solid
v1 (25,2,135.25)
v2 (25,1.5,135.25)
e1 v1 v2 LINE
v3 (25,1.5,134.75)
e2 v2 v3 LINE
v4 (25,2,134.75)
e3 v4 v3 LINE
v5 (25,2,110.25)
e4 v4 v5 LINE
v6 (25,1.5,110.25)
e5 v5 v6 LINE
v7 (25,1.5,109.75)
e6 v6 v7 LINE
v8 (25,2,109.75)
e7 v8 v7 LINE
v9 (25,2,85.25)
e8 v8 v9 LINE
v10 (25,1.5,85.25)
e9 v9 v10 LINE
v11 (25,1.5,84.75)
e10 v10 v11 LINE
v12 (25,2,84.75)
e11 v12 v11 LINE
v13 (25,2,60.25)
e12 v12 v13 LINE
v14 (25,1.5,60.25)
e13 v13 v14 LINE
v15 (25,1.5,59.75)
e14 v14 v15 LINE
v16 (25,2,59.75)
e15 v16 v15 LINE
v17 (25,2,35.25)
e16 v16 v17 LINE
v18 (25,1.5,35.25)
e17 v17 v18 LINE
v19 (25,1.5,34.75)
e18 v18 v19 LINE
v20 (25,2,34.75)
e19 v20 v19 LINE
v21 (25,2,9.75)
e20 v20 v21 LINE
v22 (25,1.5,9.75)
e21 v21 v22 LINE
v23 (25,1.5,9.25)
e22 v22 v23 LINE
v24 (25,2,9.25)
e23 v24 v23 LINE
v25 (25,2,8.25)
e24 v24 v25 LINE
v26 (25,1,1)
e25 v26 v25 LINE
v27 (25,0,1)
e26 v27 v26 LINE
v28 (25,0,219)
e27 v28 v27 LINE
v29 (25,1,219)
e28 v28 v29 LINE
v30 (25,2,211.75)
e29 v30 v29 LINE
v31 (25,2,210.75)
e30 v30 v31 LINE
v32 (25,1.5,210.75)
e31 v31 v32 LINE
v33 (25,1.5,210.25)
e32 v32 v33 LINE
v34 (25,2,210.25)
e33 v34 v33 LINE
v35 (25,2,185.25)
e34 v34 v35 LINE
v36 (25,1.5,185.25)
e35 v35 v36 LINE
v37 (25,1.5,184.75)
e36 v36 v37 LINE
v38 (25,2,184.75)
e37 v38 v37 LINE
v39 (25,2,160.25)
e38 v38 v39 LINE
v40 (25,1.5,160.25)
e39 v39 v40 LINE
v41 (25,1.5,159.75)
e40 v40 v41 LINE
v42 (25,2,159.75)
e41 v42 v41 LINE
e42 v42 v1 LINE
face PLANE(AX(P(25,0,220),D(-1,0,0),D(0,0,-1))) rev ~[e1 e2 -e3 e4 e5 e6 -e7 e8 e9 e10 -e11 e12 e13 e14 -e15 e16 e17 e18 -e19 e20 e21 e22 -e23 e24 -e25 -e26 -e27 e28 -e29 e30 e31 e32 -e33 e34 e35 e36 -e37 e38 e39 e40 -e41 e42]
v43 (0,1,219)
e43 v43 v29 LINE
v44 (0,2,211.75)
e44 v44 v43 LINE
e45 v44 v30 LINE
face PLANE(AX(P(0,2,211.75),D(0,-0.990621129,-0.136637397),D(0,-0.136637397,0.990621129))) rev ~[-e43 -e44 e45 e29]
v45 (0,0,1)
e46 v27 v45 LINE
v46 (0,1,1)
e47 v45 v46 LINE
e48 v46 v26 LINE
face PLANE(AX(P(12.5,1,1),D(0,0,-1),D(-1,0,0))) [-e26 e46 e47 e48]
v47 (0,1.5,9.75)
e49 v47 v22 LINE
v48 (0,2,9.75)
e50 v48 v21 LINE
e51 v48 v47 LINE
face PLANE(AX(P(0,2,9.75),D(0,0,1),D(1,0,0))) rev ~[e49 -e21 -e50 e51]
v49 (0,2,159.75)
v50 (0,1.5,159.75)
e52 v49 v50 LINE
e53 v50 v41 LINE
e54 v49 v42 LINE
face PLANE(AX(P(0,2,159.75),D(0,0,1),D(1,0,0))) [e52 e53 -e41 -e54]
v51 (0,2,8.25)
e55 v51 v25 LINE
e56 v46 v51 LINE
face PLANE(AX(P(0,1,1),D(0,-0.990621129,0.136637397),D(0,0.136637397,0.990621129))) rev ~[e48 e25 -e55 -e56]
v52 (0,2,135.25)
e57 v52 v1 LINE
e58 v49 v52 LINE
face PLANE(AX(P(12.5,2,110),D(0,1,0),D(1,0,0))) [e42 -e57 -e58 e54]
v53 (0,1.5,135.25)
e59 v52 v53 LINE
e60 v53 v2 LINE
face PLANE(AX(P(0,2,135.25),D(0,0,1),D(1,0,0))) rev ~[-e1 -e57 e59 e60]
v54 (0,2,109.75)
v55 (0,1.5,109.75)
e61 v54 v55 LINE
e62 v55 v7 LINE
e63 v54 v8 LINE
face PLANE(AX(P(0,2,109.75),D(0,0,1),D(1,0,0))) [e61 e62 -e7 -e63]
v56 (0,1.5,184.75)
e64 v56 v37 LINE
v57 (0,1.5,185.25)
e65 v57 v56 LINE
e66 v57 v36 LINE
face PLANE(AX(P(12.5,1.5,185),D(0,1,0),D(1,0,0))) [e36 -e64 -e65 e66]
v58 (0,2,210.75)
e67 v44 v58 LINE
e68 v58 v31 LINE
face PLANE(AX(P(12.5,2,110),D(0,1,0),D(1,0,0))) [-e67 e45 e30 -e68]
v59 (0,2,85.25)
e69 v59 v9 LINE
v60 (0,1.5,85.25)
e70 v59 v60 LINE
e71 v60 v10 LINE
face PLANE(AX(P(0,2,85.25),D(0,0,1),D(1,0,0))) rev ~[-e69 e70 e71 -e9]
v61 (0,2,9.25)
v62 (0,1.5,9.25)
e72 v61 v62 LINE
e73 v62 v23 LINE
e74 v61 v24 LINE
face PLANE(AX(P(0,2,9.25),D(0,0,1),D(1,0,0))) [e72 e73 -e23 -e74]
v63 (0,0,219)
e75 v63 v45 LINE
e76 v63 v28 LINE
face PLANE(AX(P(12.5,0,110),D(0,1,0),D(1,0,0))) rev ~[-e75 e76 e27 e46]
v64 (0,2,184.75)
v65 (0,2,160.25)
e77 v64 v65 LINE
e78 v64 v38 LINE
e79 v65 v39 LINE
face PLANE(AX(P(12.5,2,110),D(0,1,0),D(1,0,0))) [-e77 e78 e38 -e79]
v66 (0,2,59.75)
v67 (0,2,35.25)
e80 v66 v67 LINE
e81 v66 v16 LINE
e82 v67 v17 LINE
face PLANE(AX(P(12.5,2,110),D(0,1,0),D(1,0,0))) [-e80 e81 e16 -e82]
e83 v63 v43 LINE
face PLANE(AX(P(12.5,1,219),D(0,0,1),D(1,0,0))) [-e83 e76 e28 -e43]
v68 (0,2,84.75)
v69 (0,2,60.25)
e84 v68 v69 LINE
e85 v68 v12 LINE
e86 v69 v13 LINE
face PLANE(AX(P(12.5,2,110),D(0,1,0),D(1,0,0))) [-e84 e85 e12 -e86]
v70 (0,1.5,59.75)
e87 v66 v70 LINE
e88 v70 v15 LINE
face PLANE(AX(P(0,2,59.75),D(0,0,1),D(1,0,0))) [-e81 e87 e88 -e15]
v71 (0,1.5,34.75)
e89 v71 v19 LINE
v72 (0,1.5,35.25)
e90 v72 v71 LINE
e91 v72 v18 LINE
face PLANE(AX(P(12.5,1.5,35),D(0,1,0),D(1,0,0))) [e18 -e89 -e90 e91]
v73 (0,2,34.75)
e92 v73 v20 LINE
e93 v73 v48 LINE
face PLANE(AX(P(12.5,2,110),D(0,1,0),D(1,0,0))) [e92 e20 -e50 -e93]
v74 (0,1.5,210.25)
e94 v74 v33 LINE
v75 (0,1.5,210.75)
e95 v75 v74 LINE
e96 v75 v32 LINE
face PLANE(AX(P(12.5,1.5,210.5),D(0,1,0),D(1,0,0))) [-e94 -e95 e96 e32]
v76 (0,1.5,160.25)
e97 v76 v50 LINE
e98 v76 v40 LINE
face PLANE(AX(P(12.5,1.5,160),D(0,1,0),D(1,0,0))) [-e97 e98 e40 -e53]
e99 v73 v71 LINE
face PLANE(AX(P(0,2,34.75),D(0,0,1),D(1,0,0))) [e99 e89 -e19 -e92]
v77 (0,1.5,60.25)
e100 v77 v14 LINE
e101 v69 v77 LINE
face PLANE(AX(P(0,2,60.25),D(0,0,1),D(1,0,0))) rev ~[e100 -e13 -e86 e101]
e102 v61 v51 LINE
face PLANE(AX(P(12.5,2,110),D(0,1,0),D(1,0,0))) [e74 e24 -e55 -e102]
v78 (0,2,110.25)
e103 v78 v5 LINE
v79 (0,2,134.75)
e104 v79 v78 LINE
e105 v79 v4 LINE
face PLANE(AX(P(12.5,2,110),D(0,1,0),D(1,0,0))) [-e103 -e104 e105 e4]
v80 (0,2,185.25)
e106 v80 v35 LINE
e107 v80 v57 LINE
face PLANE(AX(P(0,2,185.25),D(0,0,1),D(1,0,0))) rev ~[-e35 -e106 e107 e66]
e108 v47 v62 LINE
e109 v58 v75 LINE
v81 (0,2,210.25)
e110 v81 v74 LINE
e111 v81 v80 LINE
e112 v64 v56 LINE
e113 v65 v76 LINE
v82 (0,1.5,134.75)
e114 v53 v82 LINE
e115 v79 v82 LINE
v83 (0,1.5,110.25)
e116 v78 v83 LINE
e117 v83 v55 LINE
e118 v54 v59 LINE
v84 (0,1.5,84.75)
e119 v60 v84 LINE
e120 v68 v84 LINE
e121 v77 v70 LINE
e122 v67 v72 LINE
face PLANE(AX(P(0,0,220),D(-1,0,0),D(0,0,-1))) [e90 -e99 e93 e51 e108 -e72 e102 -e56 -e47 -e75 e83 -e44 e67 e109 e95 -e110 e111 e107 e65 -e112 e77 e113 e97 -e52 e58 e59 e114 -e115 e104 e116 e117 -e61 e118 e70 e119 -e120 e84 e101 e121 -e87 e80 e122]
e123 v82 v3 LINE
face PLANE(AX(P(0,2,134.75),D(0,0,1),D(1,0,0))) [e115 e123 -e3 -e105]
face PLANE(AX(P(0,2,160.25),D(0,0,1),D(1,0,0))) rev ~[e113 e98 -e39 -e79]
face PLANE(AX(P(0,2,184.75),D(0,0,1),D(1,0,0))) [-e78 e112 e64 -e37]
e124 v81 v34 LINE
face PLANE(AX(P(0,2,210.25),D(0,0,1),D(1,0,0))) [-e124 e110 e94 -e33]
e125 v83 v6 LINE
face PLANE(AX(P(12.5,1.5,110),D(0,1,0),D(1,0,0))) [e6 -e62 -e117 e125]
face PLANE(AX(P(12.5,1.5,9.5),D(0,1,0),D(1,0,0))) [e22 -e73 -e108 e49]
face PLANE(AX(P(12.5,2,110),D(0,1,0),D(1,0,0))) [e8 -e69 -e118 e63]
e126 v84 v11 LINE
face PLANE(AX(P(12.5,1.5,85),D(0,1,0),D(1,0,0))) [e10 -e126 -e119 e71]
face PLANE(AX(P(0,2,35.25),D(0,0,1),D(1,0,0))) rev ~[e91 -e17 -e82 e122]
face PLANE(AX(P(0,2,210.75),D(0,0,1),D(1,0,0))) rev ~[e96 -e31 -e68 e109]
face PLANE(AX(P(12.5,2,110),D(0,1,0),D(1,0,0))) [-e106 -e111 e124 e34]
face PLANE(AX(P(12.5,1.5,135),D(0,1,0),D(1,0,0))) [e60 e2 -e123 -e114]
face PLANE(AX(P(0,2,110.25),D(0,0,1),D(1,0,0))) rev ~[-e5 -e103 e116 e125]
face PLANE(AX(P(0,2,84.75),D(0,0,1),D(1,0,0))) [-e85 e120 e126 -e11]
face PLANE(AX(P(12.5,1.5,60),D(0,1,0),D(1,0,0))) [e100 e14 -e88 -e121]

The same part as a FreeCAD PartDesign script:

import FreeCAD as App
import Part
import Sketcher


def add_polygon(sketch, points):
    """Adds a closed chain of lines whose ends are joined by coincident constraints."""
    first, n = sketch.GeometryCount, len(points)
    for a, b in zip(points, points[1:] + points[:1]):
        sketch.addGeometry(Part.LineSegment(App.Vector(*a, 0), App.Vector(*b, 0)), False)
    for i in range(n):
        sketch.addConstraint(Sketcher.Constraint("Coincident", first + i, 2, first + (i + 1) % n, 1))

doc = App.newDocument("Part")
body = doc.addObject("PartDesign::Body", "Body")

# Sketch on XZ plane
sketch1 = body.newObject("Sketcher::SketchObject", "Sketch")
sketch1.AttachmentSupport = (doc.getObject("XZ_Plane"), [""])
sketch1.MapMode = "FlatFace"
add_polygon(sketch1, [(0, 0), (0, 220), (25, 220), (25, 0)])  # lines 0-3
sketch1.addConstraint([
    Sketcher.Constraint("Vertical", 0),
    Sketcher.Constraint("Horizontal", 1),
    Sketcher.Constraint("Vertical", 2),
    Sketcher.Constraint("Horizontal", 3),
    Sketcher.Constraint("Coincident", 3, 2, -1, 1),
    Sketcher.Constraint("DistanceX", 1, 1, 1, 2, 25.0),
    Sketcher.Constraint("DistanceY", 0, 1, 0, 2, 220.0),
])
pad1 = body.newObject("PartDesign::Pad", "Pad")
pad1.Profile = sketch1
pad1.Length = 2
pad1.Reversed = True

# Sketch on XZ plane
sketch2 = body.newObject("Sketcher::SketchObject", "Sketch001")
sketch2.AttachmentSupport = (doc.getObject("XZ_Plane"), [""])
sketch2.MapMode = "FlatFace"
sketch2.AttachmentOffset = App.Placement(App.Vector(0, 0, -2), App.Rotation())
add_polygon(sketch2, [(0, 9.25), (0, 9.75), (25, 9.75), (25, 9.25)])  # lines 0-3
add_polygon(sketch2, [(0, 210.25), (0, 210.75), (25, 210.75), (25, 210.25)])  # lines 4-7
add_polygon(sketch2, [(0, 59.75), (0, 60.25), (25, 60.25), (25, 59.75)])  # lines 8-11
add_polygon(sketch2, [(0, 34.75), (0, 35.25), (25, 35.25), (25, 34.75)])  # lines 12-15
add_polygon(sketch2, [(0, 84.75), (0, 85.25), (25, 85.25), (25, 84.75)])  # lines 16-19
add_polygon(sketch2, [(0, 109.75), (0, 110.25), (25, 110.25), (25, 109.75)])  # lines 20-23
add_polygon(sketch2, [(0, 134.75), (0, 135.25), (25, 135.25), (25, 134.75)])  # lines 24-27
add_polygon(sketch2, [(0, 159.75), (0, 160.25), (25, 160.25), (25, 159.75)])  # lines 28-31
add_polygon(sketch2, [(0, 184.75), (0, 185.25), (25, 185.25), (25, 184.75)])  # lines 32-35
sketch2.addConstraint([
    Sketcher.Constraint("Vertical", 0),
    Sketcher.Constraint("Horizontal", 1),
    Sketcher.Constraint("Vertical", 2),
    Sketcher.Constraint("Horizontal", 3),
    Sketcher.Constraint("Vertical", 4),
    Sketcher.Constraint("Horizontal", 5),
    Sketcher.Constraint("Vertical", 6),
    Sketcher.Constraint("Horizontal", 7),
    Sketcher.Constraint("Vertical", 8),
    Sketcher.Constraint("Horizontal", 9),
    Sketcher.Constraint("Vertical", 10),
    Sketcher.Constraint("Horizontal", 11),
    Sketcher.Constraint("Vertical", 12),
    Sketcher.Constraint("Horizontal", 13),
    Sketcher.Constraint("Vertical", 14),
    Sketcher.Constraint("Horizontal", 15),
    Sketcher.Constraint("Vertical", 16),
    Sketcher.Constraint("Horizontal", 17),
    Sketcher.Constraint("Vertical", 18),
    Sketcher.Constraint("Horizontal", 19),
    Sketcher.Constraint("Vertical", 20),
    Sketcher.Constraint("Horizontal", 21),
    Sketcher.Constraint("Vertical", 22),
    Sketcher.Constraint("Horizontal", 23),
    Sketcher.Constraint("Vertical", 24),
    Sketcher.Constraint("Horizontal", 25),
    Sketcher.Constraint("Vertical", 26),
    Sketcher.Constraint("Horizontal", 27),
    Sketcher.Constraint("Vertical", 28),
    Sketcher.Constraint("Horizontal", 29),
    Sketcher.Constraint("Vertical", 30),
    Sketcher.Constraint("Horizontal", 31),
    Sketcher.Constraint("Vertical", 32),
    Sketcher.Constraint("Horizontal", 33),
    Sketcher.Constraint("Vertical", 34),
    Sketcher.Constraint("Horizontal", 35),
    Sketcher.Constraint("PointOnObject", 0, 2, -2),
    Sketcher.Constraint("PointOnObject", 4, 2, -2),
    Sketcher.Constraint("PointOnObject", 8, 2, -2),
    Sketcher.Constraint("PointOnObject", 12, 2, -2),
    Sketcher.Constraint("PointOnObject", 16, 2, -2),
    Sketcher.Constraint("PointOnObject", 20, 2, -2),
    Sketcher.Constraint("PointOnObject", 24, 2, -2),
    Sketcher.Constraint("PointOnObject", 28, 2, -2),
    Sketcher.Constraint("PointOnObject", 32, 2, -2),
    Sketcher.Constraint("Vertical", 2, 2, 5, 2),
    Sketcher.Constraint("Vertical", 6, 2, 9, 2),
    Sketcher.Constraint("Vertical", 10, 2, 13, 2),
    Sketcher.Constraint("Vertical", 14, 2, 17, 2),
    Sketcher.Constraint("Vertical", 18, 2, 21, 2),
    Sketcher.Constraint("Vertical", 22, 2, 25, 2),
    Sketcher.Constraint("Vertical", 26, 2, 29, 2),
    Sketcher.Constraint("Vertical", 30, 2, 33, 2),
    Sketcher.Constraint("Equal", 2, 4),
    Sketcher.Constraint("Equal", 6, 8),
    Sketcher.Constraint("Equal", 10, 12),
    Sketcher.Constraint("Equal", 14, 16),
    Sketcher.Constraint("Equal", 18, 20),
    Sketcher.Constraint("Equal", 22, 24),
    Sketcher.Constraint("Equal", 26, 28),
    Sketcher.Constraint("Equal", 30, 32),
    Sketcher.Constraint("DistanceX", 1, 1, 1, 2, 25.0),
    Sketcher.Constraint("DistanceY", 0, 1, 0, 2, 0.5),
    Sketcher.Constraint("DistanceY", 0, 2, 4, 2, 201.0),
    Sketcher.Constraint("DistanceY", 3, 2, 8, 2, 51.0),
    Sketcher.Constraint("DistanceY", 12, 2, 8, 2, 25.0),
    Sketcher.Constraint("DistanceY", 8, 2, 16, 2, 25.0),
    Sketcher.Constraint("DistanceY", 16, 2, 20, 2, 25.0),
    Sketcher.Constraint("DistanceY", 20, 2, 24, 2, 25.0),
    Sketcher.Constraint("DistanceY", 24, 2, 28, 2, 25.0),
    Sketcher.Constraint("DistanceY", 32, 2, 7, 2, 25.0),
    Sketcher.Constraint("DistanceY", -1, 1, 0, 2, 9.75),
])
pocket1 = body.newObject("PartDesign::Pocket", "Pocket")
pocket1.Profile = sketch2
pocket1.Length = 0.5
pocket1.Reversed = True

# Sketch on XY plane
sketch3 = body.newObject("Sketcher::SketchObject", "Sketch002")
sketch3.AttachmentSupport = (doc.getObject("XY_Plane"), [""])
sketch3.MapMode = "FlatFace"
add_polygon(sketch3, [(25, 2), (25, 0), (0, 0), (0, 2)])  # lines 0-3
sketch3.addConstraint([
    Sketcher.Constraint("Vertical", 0),
    Sketcher.Constraint("Horizontal", 1),
    Sketcher.Constraint("Vertical", 2),
    Sketcher.Constraint("Horizontal", 3),
    Sketcher.Constraint("Coincident", 1, 2, -1, 1),
    Sketcher.Constraint("DistanceX", 1, 2, 1, 1, 25.0),
    Sketcher.Constraint("DistanceY", 0, 2, 0, 1, 2.0),
])
pocket2 = body.newObject("PartDesign::Pocket", "Pocket001")
pocket2.Profile = sketch3
pocket2.Length = 1
pocket2.Reversed = True

# Sketch on XY plane
sketch4 = body.newObject("Sketcher::SketchObject", "Sketch003")
sketch4.AttachmentSupport = (doc.getObject("XY_Plane"), [""])
sketch4.MapMode = "FlatFace"
sketch4.AttachmentOffset = App.Placement(App.Vector(0, 0, 220), App.Rotation())
add_polygon(sketch4, [(0, 2), (0, 0), (25, 0), (25, 2)])  # lines 0-3
sketch4.addConstraint([
    Sketcher.Constraint("Vertical", 0),
    Sketcher.Constraint("Horizontal", 1),
    Sketcher.Constraint("Vertical", 2),
    Sketcher.Constraint("Horizontal", 3),
    Sketcher.Constraint("Coincident", 0, 2, -1, 1),
    Sketcher.Constraint("DistanceX", 1, 1, 1, 2, 25.0),
    Sketcher.Constraint("DistanceY", 0, 2, 0, 1, 2.0),
])
pocket3 = body.newObject("PartDesign::Pocket", "Pocket002")
pocket3.Profile = sketch4
pocket3.Length = 1

# Sketch on YZ plane
sketch5 = body.newObject("Sketcher::SketchObject", "Sketch004")
sketch5.AttachmentSupport = (doc.getObject("YZ_Plane"), [""])
sketch5.MapMode = "FlatFace"
add_polygon(sketch5, [(1, 1), (2, 8.25), (2, 1)])  # lines 0-2
add_polygon(sketch5, [(2, 211.75), (1, 219), (2, 219)])  # lines 3-5
sketch5.addConstraint([
    Sketcher.Constraint("Vertical", 1),
    Sketcher.Constraint("Horizontal", 2),
    Sketcher.Constraint("Horizontal", 4),
    Sketcher.Constraint("Vertical", 5),
    Sketcher.Constraint("Vertical", 2, 2, 3, 2),
    Sketcher.Constraint("Vertical", 1, 2, 4, 2),
    Sketcher.Constraint("Equal", 1, 5),
    Sketcher.Constraint("DistanceX", 2, 2, 2, 1, 1.0),
    Sketcher.Constraint("DistanceX", -1, 1, 0, 2, 2.0),
    Sketcher.Constraint("DistanceY", -1, 1, 1, 2, 1.0),
    Sketcher.Constraint("DistanceY", -1, 1, 3, 2, 219.0),
    Sketcher.Constraint("DistanceY", 1, 2, 1, 1, 7.25),
])
pocket4 = body.newObject("PartDesign::Pocket", "Pocket003")
pocket4.Profile = sketch5
pocket4.Length = 25
pocket4.Reversed = True

doc.recompute()
